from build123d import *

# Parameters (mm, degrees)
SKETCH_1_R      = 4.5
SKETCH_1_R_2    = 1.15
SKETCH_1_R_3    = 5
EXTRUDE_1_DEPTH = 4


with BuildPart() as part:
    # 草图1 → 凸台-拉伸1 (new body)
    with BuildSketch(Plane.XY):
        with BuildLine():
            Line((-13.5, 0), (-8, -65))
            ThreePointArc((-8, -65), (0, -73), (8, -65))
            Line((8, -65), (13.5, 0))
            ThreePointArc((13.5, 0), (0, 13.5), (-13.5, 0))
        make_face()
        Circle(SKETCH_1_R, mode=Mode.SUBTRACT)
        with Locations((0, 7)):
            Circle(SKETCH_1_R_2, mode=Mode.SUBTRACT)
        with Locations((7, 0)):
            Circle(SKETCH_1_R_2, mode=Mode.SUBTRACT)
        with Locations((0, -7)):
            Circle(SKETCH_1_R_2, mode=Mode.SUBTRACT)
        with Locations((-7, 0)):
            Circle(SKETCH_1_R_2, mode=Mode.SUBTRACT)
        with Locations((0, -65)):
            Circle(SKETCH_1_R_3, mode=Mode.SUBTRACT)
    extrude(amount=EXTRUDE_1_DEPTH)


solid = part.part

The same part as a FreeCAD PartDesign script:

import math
import FreeCAD as App
import Part
import Sketcher
Q = App.Units.Quantity

doc = App.newDocument("Part")
body = doc.addObject("PartDesign::Body", "Body")

sketch1 = body.newObject("Sketcher::SketchObject", "Sketch")
sketch1.AttachmentSupport = (doc.getObject("XY_Plane"), [""])
sketch1.MapMode = "FlatFace"
sketch1.addGeometry([
    Part.LineSegment(App.Vector(-13.5, 0, 0), App.Vector(-8, -65, 0)),
    Part.ArcOfCircle(Part.Circle(App.Vector(0, -65, 0), App.Vector(0, 0, 1), 8), math.radians(180), math.radians(360)),
    Part.LineSegment(App.Vector(8, -65, 0), App.Vector(13.5, 0, 0)),
    Part.ArcOfCircle(Part.Circle(App.Vector(0, 0, 0), App.Vector(0, 0, 1), 13.5), math.radians(0), math.radians(180)),
    Part.Circle(App.Vector(0, -65, 0), App.Vector(0, 0, 1), 5),
    Part.Circle(App.Vector(-7, 0, 0), App.Vector(0, 0, 1), 1.1),
    Part.Circle(App.Vector(0, -7, 0), App.Vector(0, 0, 1), 1.1),
    Part.Circle(App.Vector(0, 0, 0), App.Vector(0, 0, 1), 4.5),
    Part.Circle(App.Vector(0, 7, 0), App.Vector(0, 0, 1), 1.1),
    Part.Circle(App.Vector(7, 0, 0), App.Vector(0, 0, 1), 1.1),
], False)
sketch1.addConstraint([
    Sketcher.Constraint("Coincident", 0, 2, 1, 1),
    Sketcher.Constraint("Coincident", 1, 2, 2, 1),
    Sketcher.Constraint("Coincident", 2, 2, 3, 1),
    Sketcher.Constraint("Coincident", 3, 2, 0, 1),
    Sketcher.Constraint("Coincident", 3, 3, -1, 1),
    Sketcher.Constraint("Coincident", 7, 3, -1, 1),
    Sketcher.Constraint("Coincident", 4, 3, 1, 3),
    Sketcher.Constraint("Equal", 5, 6),
    Sketcher.Constraint("Equal", 6, 8),
    Sketcher.Constraint("Equal", 8, 9),
    Sketcher.Constraint("Symmetric", 6, 3, 8, 3, -1, 1),
    Sketcher.Constraint("Symmetric", 5, 3, 9, 3, -1, 1),
    Sketcher.Constraint("Symmetric", 0, 2, 1, 2, -2),
    Sketcher.Constraint("PointOnObject", 5, 3, -1),
    Sketcher.Constraint("PointOnObject", 6, 3, -2),
    Sketcher.Constraint("PointOnObject", 2, 2, -1),
    Sketcher.Constraint("PointOnObject", 3, 2, -1),
    Sketcher.Constraint("Horizontal", 4, 3, 0, 2),
    Sketcher.Constraint("Diameter", 4, Q("10 mm")),
    Sketcher.Constraint("Diameter", 7, Q("9 mm")),
    Sketcher.Constraint("Radius", 1, Q("8 mm")),
    Sketcher.Constraint("Diameter", 5, Q("2.3 mm")),
    Sketcher.Constraint("Radius", 3, Q("13.5 mm")),
    Sketcher.Constraint("DistanceY", 1, 3, -1, 1, Q("65 mm")),
    Sketcher.Constraint("DistanceX", 5, 3, -1, 1, Q("7 mm")),
    Sketcher.Constraint("DistanceY", 6, 3, -1, 1, Q("7 mm")),
])
pad1 = body.newObject("PartDesign::Pad", "Pad")
pad1.Profile = sketch1
pad1.Length = 4

doc.recompute()
